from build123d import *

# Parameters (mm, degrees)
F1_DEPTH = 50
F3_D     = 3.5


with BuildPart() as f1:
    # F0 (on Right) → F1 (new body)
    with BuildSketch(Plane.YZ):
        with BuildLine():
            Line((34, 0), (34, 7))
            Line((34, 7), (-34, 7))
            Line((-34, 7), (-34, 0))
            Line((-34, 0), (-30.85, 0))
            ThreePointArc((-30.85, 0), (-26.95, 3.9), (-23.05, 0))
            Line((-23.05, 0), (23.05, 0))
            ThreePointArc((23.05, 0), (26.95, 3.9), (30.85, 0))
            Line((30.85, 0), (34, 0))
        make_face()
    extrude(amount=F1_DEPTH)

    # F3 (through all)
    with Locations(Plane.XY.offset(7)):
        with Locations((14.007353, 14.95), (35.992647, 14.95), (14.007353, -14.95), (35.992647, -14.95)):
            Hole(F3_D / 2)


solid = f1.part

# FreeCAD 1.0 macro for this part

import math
import FreeCAD as App
import Part
import Sketcher
from FreeCAD import Vector

doc = App.newDocument("Part")
body = doc.addObject("PartDesign::Body", "Body")

sketch1 = body.newObject("Sketcher::SketchObject", "Sketch")
sketch1.AttachmentSupport = (doc.getObject("YZ_Plane"), [""])
sketch1.MapMode = "FlatFace"
sketch1.addGeometry([
    Part.LineSegment(Vector(34, 0, 0), Vector(34, 7, 0)),
    Part.LineSegment(Vector(34, 7, 0), Vector(-34, 7, 0)),
    Part.LineSegment(Vector(-34, 7, 0), Vector(-34, 0, 0)),
    Part.LineSegment(Vector(-34, 0, 0), Vector(-30.9, 0, 0)),
    Part.ArcOfCircle(Part.Circle(Vector(-26.9, 0, 0), Vector(0, 0, 1), 3.9), math.radians(0), math.radians(180)),
    Part.LineSegment(Vector(-23.1, 0, 0), Vector(23.1, 0, 0)),
    Part.ArcOfCircle(Part.Circle(Vector(26.9, 0, 0), Vector(0, 0, 1), 3.9), math.radians(0), math.radians(180)),
    Part.LineSegment(Vector(30.9, 0, 0), Vector(34, 0, 0)),
], False)
sketch1.addConstraint([
    Sketcher.Constraint("Coincident", 0, 2, 1, 1),
    Sketcher.Constraint("Coincident", 1, 2, 2, 1),
    Sketcher.Constraint("Coincident", 2, 2, 3, 1),
    Sketcher.Constraint("Coincident", 3, 2, 4, 2),
    Sketcher.Constraint("Coincident", 4, 1, 5, 1),
    Sketcher.Constraint("Coincident", 5, 2, 6, 2),
    Sketcher.Constraint("Coincident", 6, 1, 7, 1),
    Sketcher.Constraint("Coincident", 7, 2, 0, 1),
    Sketcher.Constraint("Vertical", 0),
    Sketcher.Constraint("Horizontal", 1),
    Sketcher.Constraint("Vertical", 2),
    Sketcher.Constraint("Horizontal", 3),
    Sketcher.Constraint("Horizontal", 5),
    Sketcher.Constraint("Horizontal", 7),
    Sketcher.Constraint("Equal", 4, 6),
    Sketcher.Constraint("Symmetric", 4, 3, 6, 3, -1, 1),
    Sketcher.Constraint("Symmetric", 2, 2, 7, 2, -1, 1),
    Sketcher.Constraint("PointOnObject", 4, 3, -1),
    Sketcher.Constraint("PointOnObject", 2, 2, -1),
    Sketcher.Constraint("PointOnObject", 4, 1, -1),
    Sketcher.Constraint("Radius", 4, 3.9),
    Sketcher.Constraint("DistanceX", 1, 2, 1, 1, 68.0),
    Sketcher.Constraint("DistanceY", 0, 1, 0, 2, 7.0),
    Sketcher.Constraint("DistanceX", 5, 1, 5, 2, 46.1),
])
pad1 = body.newObject("PartDesign::Pad", "Pad")
pad1.Profile = sketch1
pad1.Length = 50

sketch2 = body.newObject("Sketcher::SketchObject", "Sketch001")
sketch2.AttachmentSupport = (doc.getObject("XY_Plane"), [""])
sketch2.MapMode = "FlatFace"
sketch2.AttachmentOffset = App.Placement(Vector(0, 0, 7), App.Rotation())
sketch2.addGeometry([
    Part.Circle(Vector(14, 14.9, 0), Vector(0, 0, 1), 1.8),
    Part.Circle(Vector(36, 14.9, 0), Vector(0, 0, 1), 1.8),
    Part.Circle(Vector(14, -14.9, 0), Vector(0, 0, 1), 1.8),
    Part.Circle(Vector(36, -14.9, 0), Vector(0, 0, 1), 1.8),
], False)
sketch2.addConstraint([
    Sketcher.Constraint("Equal", 0, 1),
    Sketcher.Constraint("Equal", 1, 2),
    Sketcher.Constraint("Equal", 2, 3),
    Sketcher.Constraint("Symmetric", 0, 3, 2, 3, -1),
    Sketcher.Constraint("Symmetric", 1, 3, 3, 3, -1),
    Sketcher.Constraint("Horizontal", 0, 3, 1, 3),
    Sketcher.Constraint("Diameter", 0, 3.5),
    Sketcher.Constraint("DistanceY", 2, 3, 0, 3, 29.9),
    Sketcher.Constraint("DistanceX", -1, 1, 0, 3, 14.007353),
    Sketcher.Constraint("DistanceX", -1, 1, 1, 3, 35.992647),
])
doc.recompute()
hole = body.newObject("PartDesign::Hole", "Hole")
hole.Profile = sketch2
hole.ThreadType = "None"
hole.Diameter = 3.5
hole.DepthType = "ThroughAll"

doc.recompute()
